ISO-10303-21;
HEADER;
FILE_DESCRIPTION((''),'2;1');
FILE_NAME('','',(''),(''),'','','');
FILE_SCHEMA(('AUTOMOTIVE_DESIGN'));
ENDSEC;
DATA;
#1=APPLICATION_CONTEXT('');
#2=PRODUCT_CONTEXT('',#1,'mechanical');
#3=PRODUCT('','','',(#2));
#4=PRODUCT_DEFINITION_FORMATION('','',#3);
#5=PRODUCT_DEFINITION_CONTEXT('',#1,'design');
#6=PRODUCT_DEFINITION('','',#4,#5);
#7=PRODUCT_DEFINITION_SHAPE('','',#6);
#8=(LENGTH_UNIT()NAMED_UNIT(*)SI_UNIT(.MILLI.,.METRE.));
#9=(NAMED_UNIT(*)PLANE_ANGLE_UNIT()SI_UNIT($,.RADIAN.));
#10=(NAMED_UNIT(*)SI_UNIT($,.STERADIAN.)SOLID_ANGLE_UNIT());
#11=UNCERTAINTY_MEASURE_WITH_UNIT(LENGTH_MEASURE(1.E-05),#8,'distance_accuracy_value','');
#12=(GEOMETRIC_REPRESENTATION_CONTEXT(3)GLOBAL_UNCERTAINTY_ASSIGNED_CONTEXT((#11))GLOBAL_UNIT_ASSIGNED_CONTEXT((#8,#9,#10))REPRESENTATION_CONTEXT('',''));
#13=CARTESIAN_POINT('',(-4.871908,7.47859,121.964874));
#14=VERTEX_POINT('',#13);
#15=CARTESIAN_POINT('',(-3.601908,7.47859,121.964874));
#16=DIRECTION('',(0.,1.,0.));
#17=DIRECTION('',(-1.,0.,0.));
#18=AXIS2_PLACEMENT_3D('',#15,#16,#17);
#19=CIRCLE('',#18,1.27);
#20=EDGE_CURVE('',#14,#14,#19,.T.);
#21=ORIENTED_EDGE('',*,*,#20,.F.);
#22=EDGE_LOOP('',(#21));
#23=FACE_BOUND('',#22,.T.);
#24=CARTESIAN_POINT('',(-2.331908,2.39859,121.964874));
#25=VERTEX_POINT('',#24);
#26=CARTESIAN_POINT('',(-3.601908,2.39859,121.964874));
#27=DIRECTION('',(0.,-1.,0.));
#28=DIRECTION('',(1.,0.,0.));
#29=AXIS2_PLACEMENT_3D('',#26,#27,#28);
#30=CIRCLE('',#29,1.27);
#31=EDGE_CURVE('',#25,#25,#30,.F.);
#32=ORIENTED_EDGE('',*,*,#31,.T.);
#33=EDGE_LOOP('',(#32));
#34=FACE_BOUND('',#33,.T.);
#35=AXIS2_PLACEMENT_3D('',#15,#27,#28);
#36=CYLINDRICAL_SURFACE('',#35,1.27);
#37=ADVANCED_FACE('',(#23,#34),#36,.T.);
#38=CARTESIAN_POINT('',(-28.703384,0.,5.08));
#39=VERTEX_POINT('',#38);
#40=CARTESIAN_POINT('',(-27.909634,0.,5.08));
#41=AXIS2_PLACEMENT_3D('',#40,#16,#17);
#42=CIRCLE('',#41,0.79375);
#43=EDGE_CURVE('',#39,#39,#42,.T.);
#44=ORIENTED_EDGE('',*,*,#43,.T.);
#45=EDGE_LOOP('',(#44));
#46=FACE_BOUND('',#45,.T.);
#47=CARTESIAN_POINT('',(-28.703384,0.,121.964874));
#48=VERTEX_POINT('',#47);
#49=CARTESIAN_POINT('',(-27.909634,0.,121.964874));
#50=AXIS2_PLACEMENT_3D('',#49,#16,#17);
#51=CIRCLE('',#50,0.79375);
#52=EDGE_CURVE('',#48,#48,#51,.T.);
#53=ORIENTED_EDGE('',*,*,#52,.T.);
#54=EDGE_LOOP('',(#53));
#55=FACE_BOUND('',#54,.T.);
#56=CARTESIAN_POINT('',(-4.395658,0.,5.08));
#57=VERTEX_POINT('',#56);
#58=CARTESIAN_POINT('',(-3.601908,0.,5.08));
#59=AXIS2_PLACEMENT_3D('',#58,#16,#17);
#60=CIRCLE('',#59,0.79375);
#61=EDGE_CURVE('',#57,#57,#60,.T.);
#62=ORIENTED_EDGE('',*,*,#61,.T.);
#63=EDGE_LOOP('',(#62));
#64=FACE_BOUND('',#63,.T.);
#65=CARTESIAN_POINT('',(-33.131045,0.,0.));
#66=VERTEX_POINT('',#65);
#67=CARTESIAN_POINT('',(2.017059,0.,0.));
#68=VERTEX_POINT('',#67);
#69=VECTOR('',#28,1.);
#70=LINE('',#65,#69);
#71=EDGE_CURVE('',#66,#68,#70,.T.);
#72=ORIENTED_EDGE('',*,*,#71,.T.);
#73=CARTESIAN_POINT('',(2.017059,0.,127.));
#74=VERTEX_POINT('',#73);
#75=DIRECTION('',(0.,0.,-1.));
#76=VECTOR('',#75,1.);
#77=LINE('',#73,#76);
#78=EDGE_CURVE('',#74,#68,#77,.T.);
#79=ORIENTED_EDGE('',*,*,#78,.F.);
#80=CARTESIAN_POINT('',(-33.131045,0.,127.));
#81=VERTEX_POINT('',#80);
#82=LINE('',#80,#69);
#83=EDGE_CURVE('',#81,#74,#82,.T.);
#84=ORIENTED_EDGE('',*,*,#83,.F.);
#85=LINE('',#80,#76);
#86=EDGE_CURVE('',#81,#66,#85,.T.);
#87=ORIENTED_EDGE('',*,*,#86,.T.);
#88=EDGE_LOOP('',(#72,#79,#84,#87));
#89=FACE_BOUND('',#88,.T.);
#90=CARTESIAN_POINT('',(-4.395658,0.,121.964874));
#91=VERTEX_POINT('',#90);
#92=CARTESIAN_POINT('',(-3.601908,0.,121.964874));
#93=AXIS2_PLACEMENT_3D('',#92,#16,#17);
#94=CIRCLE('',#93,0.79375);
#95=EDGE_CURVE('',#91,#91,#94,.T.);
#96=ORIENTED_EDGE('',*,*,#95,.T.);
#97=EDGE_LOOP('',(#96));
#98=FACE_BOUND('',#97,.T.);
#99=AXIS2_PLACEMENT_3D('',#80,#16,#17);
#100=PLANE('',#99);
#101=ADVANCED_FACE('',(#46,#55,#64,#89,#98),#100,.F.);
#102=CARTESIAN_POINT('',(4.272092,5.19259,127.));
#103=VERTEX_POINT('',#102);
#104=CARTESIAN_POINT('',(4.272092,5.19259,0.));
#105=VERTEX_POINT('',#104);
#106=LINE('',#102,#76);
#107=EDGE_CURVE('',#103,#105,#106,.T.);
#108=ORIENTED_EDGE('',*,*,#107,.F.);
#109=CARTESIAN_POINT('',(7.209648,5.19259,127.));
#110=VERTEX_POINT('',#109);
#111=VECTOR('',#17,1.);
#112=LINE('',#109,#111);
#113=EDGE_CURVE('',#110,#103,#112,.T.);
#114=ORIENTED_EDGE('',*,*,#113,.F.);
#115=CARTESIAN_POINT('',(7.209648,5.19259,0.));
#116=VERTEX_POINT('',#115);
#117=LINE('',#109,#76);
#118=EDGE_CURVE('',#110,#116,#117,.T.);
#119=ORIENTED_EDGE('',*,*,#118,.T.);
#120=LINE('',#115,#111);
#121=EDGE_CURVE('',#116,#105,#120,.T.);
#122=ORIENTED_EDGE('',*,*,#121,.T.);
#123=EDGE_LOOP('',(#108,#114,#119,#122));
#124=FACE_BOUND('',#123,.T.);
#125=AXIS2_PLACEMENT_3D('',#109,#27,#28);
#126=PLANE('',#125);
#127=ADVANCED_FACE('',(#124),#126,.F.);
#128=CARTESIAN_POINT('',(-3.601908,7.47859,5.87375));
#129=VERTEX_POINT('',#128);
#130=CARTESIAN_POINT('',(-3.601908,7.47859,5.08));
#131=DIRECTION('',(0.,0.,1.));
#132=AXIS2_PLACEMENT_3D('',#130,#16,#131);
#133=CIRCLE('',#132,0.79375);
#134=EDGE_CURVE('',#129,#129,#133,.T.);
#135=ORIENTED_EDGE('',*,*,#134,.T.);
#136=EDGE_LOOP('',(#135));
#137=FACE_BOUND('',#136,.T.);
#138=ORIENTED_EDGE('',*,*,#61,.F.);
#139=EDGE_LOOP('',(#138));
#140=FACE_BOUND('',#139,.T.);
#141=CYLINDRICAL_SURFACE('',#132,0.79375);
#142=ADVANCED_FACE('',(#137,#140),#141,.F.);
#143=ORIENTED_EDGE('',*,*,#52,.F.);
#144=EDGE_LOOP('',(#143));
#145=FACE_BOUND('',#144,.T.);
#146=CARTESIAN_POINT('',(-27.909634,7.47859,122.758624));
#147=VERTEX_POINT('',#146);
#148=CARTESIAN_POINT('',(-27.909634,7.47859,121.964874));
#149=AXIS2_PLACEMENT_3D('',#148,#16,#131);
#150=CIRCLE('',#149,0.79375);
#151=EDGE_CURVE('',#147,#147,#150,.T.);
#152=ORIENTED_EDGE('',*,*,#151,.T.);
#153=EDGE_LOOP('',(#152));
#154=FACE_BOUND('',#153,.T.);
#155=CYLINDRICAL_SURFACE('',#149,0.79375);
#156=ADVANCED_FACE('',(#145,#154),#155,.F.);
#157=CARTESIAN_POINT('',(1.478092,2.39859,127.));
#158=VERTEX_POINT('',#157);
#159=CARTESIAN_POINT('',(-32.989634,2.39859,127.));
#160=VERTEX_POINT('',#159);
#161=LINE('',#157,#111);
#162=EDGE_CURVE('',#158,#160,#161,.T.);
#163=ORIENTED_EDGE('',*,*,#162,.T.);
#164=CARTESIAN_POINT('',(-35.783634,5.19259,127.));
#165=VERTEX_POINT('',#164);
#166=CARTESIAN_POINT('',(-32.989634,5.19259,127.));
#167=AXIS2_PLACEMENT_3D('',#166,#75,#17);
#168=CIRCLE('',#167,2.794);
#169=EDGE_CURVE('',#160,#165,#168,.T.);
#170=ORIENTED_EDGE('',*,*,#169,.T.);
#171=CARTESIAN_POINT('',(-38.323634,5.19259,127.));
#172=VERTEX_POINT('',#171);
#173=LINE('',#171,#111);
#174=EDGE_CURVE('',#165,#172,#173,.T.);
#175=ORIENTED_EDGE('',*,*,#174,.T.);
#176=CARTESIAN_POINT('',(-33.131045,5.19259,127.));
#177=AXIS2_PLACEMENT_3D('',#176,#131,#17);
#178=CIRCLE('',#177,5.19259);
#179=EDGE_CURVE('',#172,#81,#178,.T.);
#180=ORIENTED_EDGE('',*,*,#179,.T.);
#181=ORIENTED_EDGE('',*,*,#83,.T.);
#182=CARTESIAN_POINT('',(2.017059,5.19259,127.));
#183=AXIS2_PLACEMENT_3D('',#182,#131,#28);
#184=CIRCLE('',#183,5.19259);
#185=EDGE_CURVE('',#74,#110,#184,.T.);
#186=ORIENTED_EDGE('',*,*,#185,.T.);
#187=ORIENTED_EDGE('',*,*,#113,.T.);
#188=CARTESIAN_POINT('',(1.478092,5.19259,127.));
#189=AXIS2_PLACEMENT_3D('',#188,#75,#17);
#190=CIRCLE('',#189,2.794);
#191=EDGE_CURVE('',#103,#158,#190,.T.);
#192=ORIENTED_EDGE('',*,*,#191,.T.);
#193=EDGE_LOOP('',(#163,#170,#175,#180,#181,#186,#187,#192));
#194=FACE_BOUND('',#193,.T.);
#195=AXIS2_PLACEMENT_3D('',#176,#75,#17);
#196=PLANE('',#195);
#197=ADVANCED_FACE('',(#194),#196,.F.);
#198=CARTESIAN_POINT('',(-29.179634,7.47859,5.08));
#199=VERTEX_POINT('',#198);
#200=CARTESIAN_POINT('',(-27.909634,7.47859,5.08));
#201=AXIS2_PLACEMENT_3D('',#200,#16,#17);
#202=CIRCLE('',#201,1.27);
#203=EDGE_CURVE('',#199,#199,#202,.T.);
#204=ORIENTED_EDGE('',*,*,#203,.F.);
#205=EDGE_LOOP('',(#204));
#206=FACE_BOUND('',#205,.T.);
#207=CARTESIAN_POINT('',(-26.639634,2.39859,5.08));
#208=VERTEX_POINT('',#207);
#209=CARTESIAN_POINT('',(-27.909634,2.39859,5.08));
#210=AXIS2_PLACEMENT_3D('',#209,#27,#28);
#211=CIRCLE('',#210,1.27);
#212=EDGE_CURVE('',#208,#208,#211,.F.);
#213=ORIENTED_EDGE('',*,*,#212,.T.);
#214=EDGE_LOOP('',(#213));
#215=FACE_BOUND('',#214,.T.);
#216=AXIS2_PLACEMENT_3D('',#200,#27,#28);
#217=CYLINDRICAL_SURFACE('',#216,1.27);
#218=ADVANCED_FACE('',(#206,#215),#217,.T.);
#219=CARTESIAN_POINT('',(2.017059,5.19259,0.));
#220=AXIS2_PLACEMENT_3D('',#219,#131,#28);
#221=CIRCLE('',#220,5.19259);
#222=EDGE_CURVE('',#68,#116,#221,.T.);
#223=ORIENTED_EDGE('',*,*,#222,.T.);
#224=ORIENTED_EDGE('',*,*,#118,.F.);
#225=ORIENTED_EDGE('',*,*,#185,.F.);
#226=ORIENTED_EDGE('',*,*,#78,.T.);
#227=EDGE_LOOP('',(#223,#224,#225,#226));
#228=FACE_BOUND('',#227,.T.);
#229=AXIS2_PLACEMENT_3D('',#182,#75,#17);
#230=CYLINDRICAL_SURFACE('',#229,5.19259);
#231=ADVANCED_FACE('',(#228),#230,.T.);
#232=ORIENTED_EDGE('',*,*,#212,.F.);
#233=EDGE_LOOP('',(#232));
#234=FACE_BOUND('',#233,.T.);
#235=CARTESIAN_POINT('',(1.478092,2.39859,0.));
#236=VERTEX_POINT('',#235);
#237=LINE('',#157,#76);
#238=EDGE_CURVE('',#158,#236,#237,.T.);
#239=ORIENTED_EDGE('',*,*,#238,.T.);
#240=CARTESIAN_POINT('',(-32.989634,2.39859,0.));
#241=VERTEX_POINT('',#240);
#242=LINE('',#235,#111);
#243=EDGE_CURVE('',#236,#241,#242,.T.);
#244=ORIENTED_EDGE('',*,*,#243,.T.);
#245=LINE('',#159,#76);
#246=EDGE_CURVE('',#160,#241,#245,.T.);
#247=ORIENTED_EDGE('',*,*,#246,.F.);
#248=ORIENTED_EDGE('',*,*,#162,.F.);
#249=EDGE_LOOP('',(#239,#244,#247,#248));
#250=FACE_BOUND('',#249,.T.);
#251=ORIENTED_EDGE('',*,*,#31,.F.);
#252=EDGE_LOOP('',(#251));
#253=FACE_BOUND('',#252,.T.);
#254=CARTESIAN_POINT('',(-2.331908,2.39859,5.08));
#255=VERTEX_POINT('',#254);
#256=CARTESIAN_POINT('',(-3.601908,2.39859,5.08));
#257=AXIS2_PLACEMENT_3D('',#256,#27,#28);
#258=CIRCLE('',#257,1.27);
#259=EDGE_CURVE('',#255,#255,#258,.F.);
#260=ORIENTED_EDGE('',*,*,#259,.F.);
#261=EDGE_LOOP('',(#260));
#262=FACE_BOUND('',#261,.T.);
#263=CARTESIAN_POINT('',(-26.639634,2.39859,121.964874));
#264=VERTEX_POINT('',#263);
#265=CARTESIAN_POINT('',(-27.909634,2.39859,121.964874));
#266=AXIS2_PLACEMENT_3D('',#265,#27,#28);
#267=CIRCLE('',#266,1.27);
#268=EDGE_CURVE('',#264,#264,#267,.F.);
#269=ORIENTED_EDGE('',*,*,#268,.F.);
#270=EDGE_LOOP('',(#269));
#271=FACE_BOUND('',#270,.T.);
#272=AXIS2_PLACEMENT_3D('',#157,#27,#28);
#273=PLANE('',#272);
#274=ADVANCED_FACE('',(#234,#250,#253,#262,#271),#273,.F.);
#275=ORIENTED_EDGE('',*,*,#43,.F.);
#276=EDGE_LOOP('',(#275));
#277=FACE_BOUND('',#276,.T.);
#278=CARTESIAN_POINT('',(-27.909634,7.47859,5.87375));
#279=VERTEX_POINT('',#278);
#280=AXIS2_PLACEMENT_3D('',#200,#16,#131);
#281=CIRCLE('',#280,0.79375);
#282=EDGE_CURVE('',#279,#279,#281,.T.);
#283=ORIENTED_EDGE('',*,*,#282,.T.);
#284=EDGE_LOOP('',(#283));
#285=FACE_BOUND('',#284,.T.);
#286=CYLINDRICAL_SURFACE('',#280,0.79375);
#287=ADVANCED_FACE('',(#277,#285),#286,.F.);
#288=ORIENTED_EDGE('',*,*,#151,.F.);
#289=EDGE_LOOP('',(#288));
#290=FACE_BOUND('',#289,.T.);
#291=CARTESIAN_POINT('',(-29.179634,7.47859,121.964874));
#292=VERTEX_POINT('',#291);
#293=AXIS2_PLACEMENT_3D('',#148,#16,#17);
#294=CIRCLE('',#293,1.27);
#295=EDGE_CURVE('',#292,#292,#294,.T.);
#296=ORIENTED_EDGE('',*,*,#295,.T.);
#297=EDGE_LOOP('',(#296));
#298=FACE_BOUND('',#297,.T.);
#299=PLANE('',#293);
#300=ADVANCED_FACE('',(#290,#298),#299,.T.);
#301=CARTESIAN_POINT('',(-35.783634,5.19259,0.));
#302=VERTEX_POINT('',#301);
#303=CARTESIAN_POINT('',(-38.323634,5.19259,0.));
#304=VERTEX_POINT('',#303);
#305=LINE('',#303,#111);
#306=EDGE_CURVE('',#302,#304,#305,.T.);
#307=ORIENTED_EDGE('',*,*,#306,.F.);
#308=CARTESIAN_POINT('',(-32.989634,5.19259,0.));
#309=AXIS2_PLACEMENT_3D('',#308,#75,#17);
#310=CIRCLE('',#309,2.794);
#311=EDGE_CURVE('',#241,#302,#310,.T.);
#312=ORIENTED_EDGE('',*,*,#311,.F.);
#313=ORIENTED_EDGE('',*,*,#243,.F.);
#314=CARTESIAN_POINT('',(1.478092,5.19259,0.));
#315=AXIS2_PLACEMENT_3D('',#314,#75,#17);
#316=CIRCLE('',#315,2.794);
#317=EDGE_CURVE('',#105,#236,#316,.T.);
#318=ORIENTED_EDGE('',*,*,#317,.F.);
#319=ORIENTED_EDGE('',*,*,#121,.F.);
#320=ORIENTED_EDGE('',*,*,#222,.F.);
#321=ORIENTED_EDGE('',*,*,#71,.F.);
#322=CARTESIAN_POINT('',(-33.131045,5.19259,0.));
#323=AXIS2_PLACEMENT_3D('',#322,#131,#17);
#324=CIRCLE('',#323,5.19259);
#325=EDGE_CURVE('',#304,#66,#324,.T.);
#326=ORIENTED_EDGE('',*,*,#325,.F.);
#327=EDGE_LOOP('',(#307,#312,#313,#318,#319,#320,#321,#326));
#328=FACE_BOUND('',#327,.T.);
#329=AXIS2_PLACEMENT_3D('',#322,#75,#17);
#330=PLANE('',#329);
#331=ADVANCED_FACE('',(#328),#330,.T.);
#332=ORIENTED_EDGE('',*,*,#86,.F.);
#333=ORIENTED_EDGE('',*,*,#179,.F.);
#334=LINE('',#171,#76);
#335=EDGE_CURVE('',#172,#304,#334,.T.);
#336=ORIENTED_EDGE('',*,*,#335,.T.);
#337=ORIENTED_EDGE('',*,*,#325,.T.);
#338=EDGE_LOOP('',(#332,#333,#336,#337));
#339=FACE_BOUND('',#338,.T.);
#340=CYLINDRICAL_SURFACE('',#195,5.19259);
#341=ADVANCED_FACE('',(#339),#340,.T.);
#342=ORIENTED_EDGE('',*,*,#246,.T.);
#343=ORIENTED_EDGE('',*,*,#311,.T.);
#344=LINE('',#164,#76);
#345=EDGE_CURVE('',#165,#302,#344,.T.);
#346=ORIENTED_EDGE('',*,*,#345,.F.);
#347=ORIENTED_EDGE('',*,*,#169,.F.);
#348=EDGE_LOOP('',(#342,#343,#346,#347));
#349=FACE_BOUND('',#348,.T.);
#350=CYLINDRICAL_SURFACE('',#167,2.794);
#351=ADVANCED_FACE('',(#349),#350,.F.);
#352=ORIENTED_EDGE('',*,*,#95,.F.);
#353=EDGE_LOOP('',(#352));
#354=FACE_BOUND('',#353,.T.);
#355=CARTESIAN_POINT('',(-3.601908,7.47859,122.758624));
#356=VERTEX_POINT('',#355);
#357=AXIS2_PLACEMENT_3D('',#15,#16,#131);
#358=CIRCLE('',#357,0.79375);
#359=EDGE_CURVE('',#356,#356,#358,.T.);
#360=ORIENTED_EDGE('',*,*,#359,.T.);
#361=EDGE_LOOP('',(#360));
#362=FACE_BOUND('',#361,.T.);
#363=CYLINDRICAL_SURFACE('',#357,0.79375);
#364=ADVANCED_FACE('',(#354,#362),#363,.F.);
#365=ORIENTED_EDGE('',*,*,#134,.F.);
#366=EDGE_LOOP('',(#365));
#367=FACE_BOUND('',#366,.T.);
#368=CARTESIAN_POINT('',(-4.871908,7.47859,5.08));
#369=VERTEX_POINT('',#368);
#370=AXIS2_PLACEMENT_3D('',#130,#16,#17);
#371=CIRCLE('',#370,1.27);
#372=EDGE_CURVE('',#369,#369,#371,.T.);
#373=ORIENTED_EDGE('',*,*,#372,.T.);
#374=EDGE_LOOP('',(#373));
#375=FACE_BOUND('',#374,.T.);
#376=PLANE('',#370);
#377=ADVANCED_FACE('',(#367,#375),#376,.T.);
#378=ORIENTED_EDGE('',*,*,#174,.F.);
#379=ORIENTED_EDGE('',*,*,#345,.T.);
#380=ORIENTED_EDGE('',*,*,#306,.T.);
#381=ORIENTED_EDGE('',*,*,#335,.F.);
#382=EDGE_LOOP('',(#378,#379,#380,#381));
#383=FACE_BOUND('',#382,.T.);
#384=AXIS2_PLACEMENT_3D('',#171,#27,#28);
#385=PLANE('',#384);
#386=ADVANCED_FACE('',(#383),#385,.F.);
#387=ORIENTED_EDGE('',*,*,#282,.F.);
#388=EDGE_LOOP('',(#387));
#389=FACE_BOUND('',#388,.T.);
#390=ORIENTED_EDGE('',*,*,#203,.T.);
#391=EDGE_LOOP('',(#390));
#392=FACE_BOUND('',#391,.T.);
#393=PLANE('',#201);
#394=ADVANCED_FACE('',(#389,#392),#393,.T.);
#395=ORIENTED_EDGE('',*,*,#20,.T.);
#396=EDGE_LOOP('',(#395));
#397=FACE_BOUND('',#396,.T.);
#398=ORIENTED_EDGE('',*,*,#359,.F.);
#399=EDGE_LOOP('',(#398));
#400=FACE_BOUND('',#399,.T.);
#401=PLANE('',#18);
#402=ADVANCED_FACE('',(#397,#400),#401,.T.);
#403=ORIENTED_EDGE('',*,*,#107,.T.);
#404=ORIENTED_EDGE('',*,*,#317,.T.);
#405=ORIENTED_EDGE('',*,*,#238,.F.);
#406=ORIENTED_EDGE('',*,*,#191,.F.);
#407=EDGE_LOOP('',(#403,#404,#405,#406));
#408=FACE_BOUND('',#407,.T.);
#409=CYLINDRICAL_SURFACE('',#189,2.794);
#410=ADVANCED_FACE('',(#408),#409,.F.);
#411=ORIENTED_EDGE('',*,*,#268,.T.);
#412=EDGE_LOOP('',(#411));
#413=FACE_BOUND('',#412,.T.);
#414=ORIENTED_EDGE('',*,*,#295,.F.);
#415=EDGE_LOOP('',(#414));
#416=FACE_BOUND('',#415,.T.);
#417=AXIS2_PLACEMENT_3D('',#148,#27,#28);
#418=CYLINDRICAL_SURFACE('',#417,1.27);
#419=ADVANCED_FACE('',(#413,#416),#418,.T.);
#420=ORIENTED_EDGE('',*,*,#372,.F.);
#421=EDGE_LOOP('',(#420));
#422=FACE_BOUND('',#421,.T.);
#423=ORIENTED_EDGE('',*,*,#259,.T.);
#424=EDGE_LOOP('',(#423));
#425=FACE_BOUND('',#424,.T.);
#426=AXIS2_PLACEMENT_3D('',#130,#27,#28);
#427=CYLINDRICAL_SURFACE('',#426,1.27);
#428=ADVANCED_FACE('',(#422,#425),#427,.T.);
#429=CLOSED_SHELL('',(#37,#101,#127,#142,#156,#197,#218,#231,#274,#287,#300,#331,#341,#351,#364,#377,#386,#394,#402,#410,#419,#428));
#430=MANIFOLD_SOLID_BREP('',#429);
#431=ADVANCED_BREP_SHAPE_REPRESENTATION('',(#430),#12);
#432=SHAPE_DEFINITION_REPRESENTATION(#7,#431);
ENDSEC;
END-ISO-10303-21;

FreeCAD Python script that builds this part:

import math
import FreeCAD as App
import Part
import Sketcher
Q = App.Units.Quantity

doc = App.newDocument("Part")
body = doc.addObject("PartDesign::Body", "Body")

# Sketch on XY plane
sketch1 = body.newObject("Sketcher::SketchObject", "Sketch")
sketch1.AttachmentSupport = (doc.getObject("XY_Plane"), [""])
sketch1.MapMode = "FlatFace"
sketch1.addGeometry([
    Part.LineSegment(App.Vector(-33.1, 0, 0), App.Vector(2, 0, 0)),  # 0
    Part.ArcOfCircle(Part.Circle(App.Vector(2, 5.2, 0), App.Vector(0, 0, 1), 5.2), math.radians(-90), math.radians(0)),  # 1
    Part.LineSegment(App.Vector(7.2, 5.2, 0), App.Vector(4.3, 5.2, 0)),  # 2
    Part.ArcOfCircle(Part.Circle(App.Vector(1.5, 5.2, 0), App.Vector(0, 0, 1), 2.8), math.radians(-90), math.radians(0)),  # 3
    Part.LineSegment(App.Vector(1.5, 2.4, 0), App.Vector(-33, 2.4, 0)),  # 4
    Part.ArcOfCircle(Part.Circle(App.Vector(-33, 5.2, 0), App.Vector(0, 0, 1), 2.8), math.radians(180), math.radians(270)),  # 5
    Part.LineSegment(App.Vector(-35.8, 5.2, 0), App.Vector(-38.3, 5.2, 0)),  # 6
    Part.ArcOfCircle(Part.Circle(App.Vector(-33.1, 5.2, 0), App.Vector(0, 0, 1), 5.2), math.radians(-180), math.radians(-90)),  # 7
], False)
sketch1.addConstraint([
    Sketcher.Constraint("Tangent", 0, 2, 1, 1),
    Sketcher.Constraint("Coincident", 1, 2, 2, 1),
    Sketcher.Constraint("Coincident", 2, 2, 3, 2),
    Sketcher.Constraint("Tangent", 3, 1, 4, 1),
    Sketcher.Constraint("Tangent", 4, 2, 5, 2),
    Sketcher.Constraint("Coincident", 5, 1, 6, 1),
    Sketcher.Constraint("Coincident", 6, 2, 7, 1),
    Sketcher.Constraint("Tangent", 7, 2, 0, 1),
    Sketcher.Constraint("Horizontal", 0),
    Sketcher.Constraint("Horizontal", 2),
    Sketcher.Constraint("Horizontal", 4),
    Sketcher.Constraint("Horizontal", 6),
    Sketcher.Constraint("Equal", 3, 5),
    Sketcher.Constraint("Equal", 1, 7),
    Sketcher.Constraint("PointOnObject", 0, 2, -1),
    Sketcher.Constraint("Horizontal", 1, 3, 3, 3),
    Sketcher.Constraint("Horizontal", 7, 3, 1, 2),
    Sketcher.Constraint("Horizontal", 2, 2, 5, 1),
    Sketcher.Constraint("Radius", 3, Q("0.11 in")),
    Sketcher.Constraint("DistanceX", 6, 2, 6, 1, Q("0.1 in")),
    Sketcher.Constraint("Radius", 1, 5.19259),
    Sketcher.Constraint("DistanceX", 0, 1, 0, 2, 35.148103),
    Sketcher.Constraint("DistanceX", 2, 2, 2, 1, 2.937557),
    Sketcher.Constraint("DistanceX", -1, 1, 1, 3, 2.017059),
])
pad1 = body.newObject("PartDesign::Pad", "Pad")
pad1.Profile = sketch1
pad1.Length = Q("5 in")

# Sketch on XZ plane
sketch2 = body.newObject("Sketcher::SketchObject", "Sketch001")
sketch2.AttachmentSupport = (doc.getObject("XZ_Plane"), [""])
sketch2.MapMode = "FlatFace"
sketch2.AttachmentOffset = App.Placement(App.Vector(0, 0, -2.39859), App.Rotation())
sketch2.addGeometry([
    Part.Circle(App.Vector(-27.9, 5.1, 0), App.Vector(0, 0, 1), 1.3),
    Part.Circle(App.Vector(-3.6, 5.1, 0), App.Vector(0, 0, 1), 1.3),
    Part.Circle(App.Vector(-27.9, 122, 0), App.Vector(0, 0, 1), 1.3),
    Part.Circle(App.Vector(-3.6, 122, 0), App.Vector(0, 0, 1), 1.3),
], False)
sketch2.addConstraint([
    Sketcher.Constraint("Equal", 0, 1),
    Sketcher.Constraint("Equal", 1, 2),
    Sketcher.Constraint("Equal", 2, 3),
    Sketcher.Constraint("Horizontal", 0, 3, 1, 3),
    Sketcher.Constraint("Horizontal", 2, 3, 3, 3),
    Sketcher.Constraint("Vertical", 0, 3, 2, 3),
    Sketcher.Constraint("Vertical", 1, 3, 3, 3),
    Sketcher.Constraint("Diameter", 0, Q("0.1 in")),
    Sketcher.Constraint("DistanceY", -1, 1, 0, 3, Q("0.2 in")),
    Sketcher.Constraint("DistanceX", 1, 3, -1, 1, 3.601908),
    Sketcher.Constraint("DistanceX", 0, 3, -1, 1, 27.909634),
    Sketcher.Constraint("DistanceY", -1, 1, 2, 3, 121.964874),
])
pad2 = body.newObject("PartDesign::Pad", "Pad001")
pad2.Profile = sketch2
pad2.Length = Q("0.2 in")
pad2.Reversed = True

# Sketch on XZ plane
sketch3 = body.newObject("Sketcher::SketchObject", "Sketch002")
sketch3.AttachmentSupport = (doc.getObject("XZ_Plane"), [""])
sketch3.MapMode = "FlatFace"
sketch3.AttachmentOffset = App.Placement(App.Vector(0, 0, -7.47859), App.Rotation())
sketch3.addGeometry([
    Part.Circle(App.Vector(-27.9, 5.1, 0), App.Vector(0, 0, 1), 0.8),
    Part.Circle(App.Vector(-3.6, 5.1, 0), App.Vector(0, 0, 1), 0.8),
    Part.Circle(App.Vector(-27.9, 122, 0), App.Vector(0, 0, 1), 0.8),
    Part.Circle(App.Vector(-3.6, 122, 0), App.Vector(0, 0, 1), 0.8),
], False)
sketch3.addConstraint([
    Sketcher.Constraint("Equal", 0, 1),
    Sketcher.Constraint("Equal", 1, 2),
    Sketcher.Constraint("Equal", 2, 3),
    Sketcher.Constraint("Horizontal", 0, 3, 1, 3),
    Sketcher.Constraint("Horizontal", 2, 3, 3, 3),
    Sketcher.Constraint("Vertical", 0, 3, 2, 3),
    Sketcher.Constraint("Vertical", 1, 3, 3, 3),
    Sketcher.Constraint("Diameter", 0, Q("0.0625 in")),
    Sketcher.Constraint("DistanceY", -1, 1, 0, 3, Q("0.2 in")),
    Sketcher.Constraint("DistanceX", 1, 3, -1, 1, 3.601908),
    Sketcher.Constraint("DistanceX", 0, 3, -1, 1, 27.909634),
    Sketcher.Constraint("DistanceY", -1, 1, 2, 3, 121.964874),
])
doc.recompute()
hole = body.newObject("PartDesign::Hole", "Hole")
hole.Profile = sketch3
hole.ThreadType = "None"
hole.Diameter = Q("0.0625 in")
hole.DepthType = "Dimension"
hole.Depth = 7.47859
hole.DrillPoint = "Flat"
hole.Reversed = True

doc.recompute()
